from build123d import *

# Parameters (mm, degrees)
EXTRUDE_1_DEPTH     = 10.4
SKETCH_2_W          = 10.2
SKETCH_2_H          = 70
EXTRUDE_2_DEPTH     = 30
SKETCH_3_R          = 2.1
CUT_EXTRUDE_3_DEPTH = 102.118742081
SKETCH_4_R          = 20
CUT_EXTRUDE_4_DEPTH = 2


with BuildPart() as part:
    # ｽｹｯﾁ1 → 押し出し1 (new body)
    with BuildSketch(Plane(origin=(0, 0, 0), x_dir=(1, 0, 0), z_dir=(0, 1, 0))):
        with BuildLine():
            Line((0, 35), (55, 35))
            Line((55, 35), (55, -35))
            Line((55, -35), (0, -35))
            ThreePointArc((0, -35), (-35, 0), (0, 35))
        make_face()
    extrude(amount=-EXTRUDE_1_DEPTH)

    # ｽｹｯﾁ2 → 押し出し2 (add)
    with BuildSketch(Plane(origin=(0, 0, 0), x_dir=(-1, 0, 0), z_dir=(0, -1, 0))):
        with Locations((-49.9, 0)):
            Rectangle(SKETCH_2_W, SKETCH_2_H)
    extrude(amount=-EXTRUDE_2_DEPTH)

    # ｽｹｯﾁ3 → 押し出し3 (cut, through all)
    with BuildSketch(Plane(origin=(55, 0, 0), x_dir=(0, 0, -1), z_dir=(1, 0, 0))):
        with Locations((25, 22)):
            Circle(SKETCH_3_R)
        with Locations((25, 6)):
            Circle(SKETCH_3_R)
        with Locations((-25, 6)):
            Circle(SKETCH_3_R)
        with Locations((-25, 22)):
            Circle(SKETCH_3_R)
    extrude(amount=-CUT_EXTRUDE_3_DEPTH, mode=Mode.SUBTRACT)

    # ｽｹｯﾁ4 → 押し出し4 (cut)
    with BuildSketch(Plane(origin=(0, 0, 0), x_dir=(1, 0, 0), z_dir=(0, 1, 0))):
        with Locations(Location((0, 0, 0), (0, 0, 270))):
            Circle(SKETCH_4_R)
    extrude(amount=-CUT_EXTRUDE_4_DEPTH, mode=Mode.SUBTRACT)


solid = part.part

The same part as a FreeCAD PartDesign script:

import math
import FreeCAD as App
import Part
import Sketcher
from FreeCAD import Vector
Q = App.Units.Quantity

doc = App.newDocument("Part")
body = doc.addObject("PartDesign::Body", "Body")

# Sketch on XZ plane
sketch1 = body.newObject("Sketcher::SketchObject", "Sketch")
sketch1.AttachmentSupport = (doc.getObject("XZ_Plane"), [""])
sketch1.MapMode = "FlatFace"
sketch1.addGeometry([
    Part.LineSegment(Vector(55, -35, 0), Vector(0, -35, 0)),
    Part.ArcOfCircle(Part.Circle(Vector(0, 0, 0), Vector(0, 0, 1), 35), math.radians(90), math.radians(270)),
    Part.LineSegment(Vector(0, 35, 0), Vector(55, 35, 0)),
    Part.LineSegment(Vector(55, 35, 0), Vector(55, -35, 0)),
], False)
sketch1.addConstraint([
    Sketcher.Constraint("Tangent", 0, 2, 1, 2),
    Sketcher.Constraint("Tangent", 1, 1, 2, 1),
    Sketcher.Constraint("Coincident", 2, 2, 3, 1),
    Sketcher.Constraint("Coincident", 3, 2, 0, 1),
    Sketcher.Constraint("Horizontal", 0),
    Sketcher.Constraint("Horizontal", 2),
    Sketcher.Constraint("Vertical", 3),
    Sketcher.Constraint("Coincident", 1, 3, -1, 1),
    Sketcher.Constraint("Radius", 1, Q("35 mm")),
    Sketcher.Constraint("DistanceX", 0, 2, 0, 1, Q("55 mm")),
])
pad1 = body.newObject("PartDesign::Pad", "Pad")
pad1.Profile = sketch1
pad1.Length = 10.4

# Sketch on XZ plane
sketch2 = body.newObject("Sketcher::SketchObject", "Sketch001")
sketch2.AttachmentSupport = (doc.getObject("XZ_Plane"), [""])
sketch2.MapMode = "FlatFace"
sketch2.addGeometry([
    Part.LineSegment(Vector(55, -35, 0), Vector(55, 35, 0)),
    Part.LineSegment(Vector(55, 35, 0), Vector(45, 35, 0)),
    Part.LineSegment(Vector(45, 35, 0), Vector(45, -35, 0)),
    Part.LineSegment(Vector(45, -35, 0), Vector(55, -35, 0)),
], False)
sketch2.addConstraint([
    Sketcher.Constraint("Coincident", 0, 2, 1, 1),
    Sketcher.Constraint("Coincident", 1, 2, 2, 1),
    Sketcher.Constraint("Coincident", 2, 2, 3, 1),
    Sketcher.Constraint("Coincident", 3, 2, 0, 1),
    Sketcher.Constraint("Vertical", 0),
    Sketcher.Constraint("Horizontal", 1),
    Sketcher.Constraint("Vertical", 2),
    Sketcher.Constraint("Horizontal", 3),
    Sketcher.Constraint("DistanceY", 0, 1, 0, 2, Q("70 mm")),
    Sketcher.Constraint("DistanceX", 1, 2, 1, 1, Q("10.2 mm")),
    Sketcher.Constraint("DistanceX", -1, 1, 0, 2, Q("55 mm")),
    Sketcher.Constraint("DistanceY", -1, 1, 0, 2, Q("35 mm")),
])
pad2 = body.newObject("PartDesign::Pad", "Pad001")
pad2.Profile = sketch2
pad2.Length = 30
pad2.Reversed = True

# Sketch on YZ plane
sketch3 = body.newObject("Sketcher::SketchObject", "Sketch002")
sketch3.AttachmentSupport = (doc.getObject("YZ_Plane"), [""])
sketch3.MapMode = "FlatFace"
sketch3.AttachmentOffset = App.Placement(Vector(0, 0, 55), App.Rotation())
sketch3.addGeometry([
    Part.Circle(Vector(22, -25, 0), Vector(0, 0, 1), 2.1),
    Part.Circle(Vector(6, -25, 0), Vector(0, 0, 1), 2.1),
    Part.Circle(Vector(6, 25, 0), Vector(0, 0, 1), 2.1),
    Part.Circle(Vector(22, 25, 0), Vector(0, 0, 1), 2.1),
], False)
sketch3.addConstraint([
    Sketcher.Constraint("Equal", 0, 1),
    Sketcher.Constraint("Equal", 1, 2),
    Sketcher.Constraint("Equal", 2, 3),
    Sketcher.Constraint("Symmetric", 1, 3, 2, 3, -1),
    Sketcher.Constraint("Symmetric", 0, 3, 3, 3, -1),
    Sketcher.Constraint("Horizontal", 0, 3, 1, 3),
    Sketcher.Constraint("Diameter", 0, Q("4.2 mm")),
    Sketcher.Constraint("DistanceX", -1, 1, 0, 3, Q("22 mm")),
    Sketcher.Constraint("DistanceY", 0, 3, -1, 1, Q("25 mm")),
    Sketcher.Constraint("DistanceX", -1, 1, 1, 3, Q("6 mm")),
])
pocket1 = body.newObject("PartDesign::Pocket", "Pocket")
pocket1.Profile = sketch3
pocket1.Type = "ThroughAll"

# Sketch on XZ plane
sketch4 = body.newObject("Sketcher::SketchObject", "Sketch003")
sketch4.AttachmentSupport = (doc.getObject("XZ_Plane"), [""])
sketch4.MapMode = "FlatFace"
sketch4.addGeometry(Part.Circle(Vector(0, 0, 0), Vector(0, 0, 1), 20), False)
sketch4.addConstraint([
    Sketcher.Constraint("Coincident", 0, 3, -1, 1),
    Sketcher.Constraint("Diameter", 0, Q("40 mm")),
])
pocket2 = body.newObject("PartDesign::Pocket", "Pocket001")
pocket2.Profile = sketch4
pocket2.Length = 2
pocket2.Reversed = True

doc.recompute()
